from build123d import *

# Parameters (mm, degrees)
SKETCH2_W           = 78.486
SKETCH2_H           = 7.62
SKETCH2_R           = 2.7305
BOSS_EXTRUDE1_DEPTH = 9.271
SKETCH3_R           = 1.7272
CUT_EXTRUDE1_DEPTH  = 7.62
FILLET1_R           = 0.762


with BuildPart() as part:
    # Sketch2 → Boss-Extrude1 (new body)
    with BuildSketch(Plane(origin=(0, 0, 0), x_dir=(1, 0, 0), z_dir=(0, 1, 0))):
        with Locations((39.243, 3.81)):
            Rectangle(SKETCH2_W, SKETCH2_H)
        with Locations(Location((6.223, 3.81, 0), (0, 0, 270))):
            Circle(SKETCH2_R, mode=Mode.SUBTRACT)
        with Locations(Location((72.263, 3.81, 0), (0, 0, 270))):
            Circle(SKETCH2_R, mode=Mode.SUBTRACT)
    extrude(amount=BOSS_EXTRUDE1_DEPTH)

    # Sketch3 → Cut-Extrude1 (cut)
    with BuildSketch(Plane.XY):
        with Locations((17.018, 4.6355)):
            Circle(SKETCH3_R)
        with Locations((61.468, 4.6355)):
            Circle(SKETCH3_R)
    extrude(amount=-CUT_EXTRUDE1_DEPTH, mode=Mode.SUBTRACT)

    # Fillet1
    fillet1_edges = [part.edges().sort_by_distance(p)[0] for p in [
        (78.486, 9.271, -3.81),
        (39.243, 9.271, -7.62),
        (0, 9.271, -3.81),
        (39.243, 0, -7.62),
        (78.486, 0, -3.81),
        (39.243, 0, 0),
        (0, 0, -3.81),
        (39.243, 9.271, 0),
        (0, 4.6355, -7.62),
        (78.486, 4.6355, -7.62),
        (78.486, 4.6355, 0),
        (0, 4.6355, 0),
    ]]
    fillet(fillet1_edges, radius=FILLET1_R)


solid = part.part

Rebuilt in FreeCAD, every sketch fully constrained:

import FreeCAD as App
import Part
import Sketcher
Q = App.Units.Quantity


def edges_at(feature, points):
    """Names of the edges that pass closest to the given points."""
    edges = feature.Shape.Edges
    near = lambda p: min(range(len(edges)), key=lambda i: edges[i].distToShape(Part.Vertex(*p))[0])
    return sorted({f"Edge{near(p) + 1}" for p in points})

doc = App.newDocument("Part")
body = doc.addObject("PartDesign::Body", "Body")

sketch1 = body.newObject("Sketcher::SketchObject", "Sketch")
sketch1.AttachmentSupport = (doc.getObject("XZ_Plane"), [""])
sketch1.MapMode = "FlatFace"
sketch1.addGeometry(Part.LineSegment(App.Vector(0, -7.6, 0), App.Vector(0, 0, 0)), False)
sketch1.addGeometry(Part.LineSegment(App.Vector(0, 0, 0), App.Vector(78.5, 0, 0)), False)
sketch1.addGeometry(Part.LineSegment(App.Vector(78.5, 0, 0), App.Vector(78.5, -7.6, 0)), False)
sketch1.addGeometry(Part.LineSegment(App.Vector(78.5, -7.6, 0), App.Vector(0, -7.6, 0)), False)
sketch1.addGeometry(Part.Circle(App.Vector(6.2, -3.8, 0), App.Vector(0, 0, 1), 2.7), False)
sketch1.addGeometry(Part.Circle(App.Vector(72.3, -3.8, 0), App.Vector(0, 0, 1), 2.7), False)
sketch1.addConstraint(Sketcher.Constraint("Coincident", 0, 2, 1, 1))
sketch1.addConstraint(Sketcher.Constraint("Coincident", 1, 2, 2, 1))
sketch1.addConstraint(Sketcher.Constraint("Coincident", 2, 2, 3, 1))
sketch1.addConstraint(Sketcher.Constraint("Coincident", 3, 2, 0, 1))
sketch1.addConstraint(Sketcher.Constraint("Vertical", 0))
sketch1.addConstraint(Sketcher.Constraint("Horizontal", 1))
sketch1.addConstraint(Sketcher.Constraint("Vertical", 2))
sketch1.addConstraint(Sketcher.Constraint("Horizontal", 3))
sketch1.addConstraint(Sketcher.Constraint("Coincident", 0, 2, -1, 1))
sketch1.addConstraint(Sketcher.Constraint("Equal", 4, 5))
sketch1.addConstraint(Sketcher.Constraint("Horizontal", 4, 3, 5, 3))
sketch1.addConstraint(Sketcher.Constraint("Diameter", 4, Q("0.215 in")))
sketch1.addConstraint(Sketcher.Constraint("DistanceY", 0, 1, 0, 2, Q("0.3 in")))
sketch1.addConstraint(Sketcher.Constraint("DistanceX", 1, 1, 1, 2, Q("3.09 in")))
sketch1.addConstraint(Sketcher.Constraint("DistanceX", 4, 3, 5, 3, Q("2.6 in")))
sketch1.addConstraint(Sketcher.Constraint("DistanceY", 4, 3, -1, 1, Q("0.15 in")))
sketch1.addConstraint(Sketcher.Constraint("DistanceX", -1, 1, 4, 3, Q("0.245 in")))
pad1 = body.newObject("PartDesign::Pad", "Pad")
pad1.Profile = sketch1
pad1.Length = Q("0.365 in")
pad1.Reversed = True

sketch2 = body.newObject("Sketcher::SketchObject", "Sketch001")
sketch2.AttachmentSupport = (doc.getObject("XY_Plane"), [""])
sketch2.MapMode = "FlatFace"
sketch2.addGeometry(Part.Circle(App.Vector(17, 4.6, 0), App.Vector(0, 0, 1), 1.7), False)
sketch2.addGeometry(Part.Circle(App.Vector(61.5, 4.6, 0), App.Vector(0, 0, 1), 1.7), False)
sketch2.addConstraint(Sketcher.Constraint("Equal", 0, 1))
sketch2.addConstraint(Sketcher.Constraint("Horizontal", 0, 3, 1, 3))
sketch2.addConstraint(Sketcher.Constraint("Diameter", 0, Q("0.136 in")))
sketch2.addConstraint(Sketcher.Constraint("DistanceX", -1, 1, 0, 3, Q("0.67 in")))
sketch2.addConstraint(Sketcher.Constraint("DistanceX", -1, 1, 1, 3, Q("2.42 in")))
sketch2.addConstraint(Sketcher.Constraint("DistanceY", -1, 1, 0, 3, Q("0.1825 in")))
pocket1 = body.newObject("PartDesign::Pocket", "Pocket")
pocket1.Profile = sketch2
pocket1.Length = Q("0.3 in")
doc.recompute()

fillet = body.newObject("PartDesign::Fillet", "Fillet")
fillet.Base = (pocket1, edges_at(pocket1, [
    (78.486, 9.271, -3.81),
    (39.243, 9.271, -7.62),
    (0, 9.271, -3.81),
    (39.243, 0, -7.62),
    (78.486, 0, -3.81),
    (39.243, 0, 0),
    (0, 0, -3.81),
    (39.243, 9.271, 0),
    (0, 4.636, -7.62),
    (78.486, 4.636, -7.62),
    (78.486, 4.636, 0),
    (0, 4.636, 0),
]))
fillet.Radius = Q("0.03 in")

doc.recompute()
